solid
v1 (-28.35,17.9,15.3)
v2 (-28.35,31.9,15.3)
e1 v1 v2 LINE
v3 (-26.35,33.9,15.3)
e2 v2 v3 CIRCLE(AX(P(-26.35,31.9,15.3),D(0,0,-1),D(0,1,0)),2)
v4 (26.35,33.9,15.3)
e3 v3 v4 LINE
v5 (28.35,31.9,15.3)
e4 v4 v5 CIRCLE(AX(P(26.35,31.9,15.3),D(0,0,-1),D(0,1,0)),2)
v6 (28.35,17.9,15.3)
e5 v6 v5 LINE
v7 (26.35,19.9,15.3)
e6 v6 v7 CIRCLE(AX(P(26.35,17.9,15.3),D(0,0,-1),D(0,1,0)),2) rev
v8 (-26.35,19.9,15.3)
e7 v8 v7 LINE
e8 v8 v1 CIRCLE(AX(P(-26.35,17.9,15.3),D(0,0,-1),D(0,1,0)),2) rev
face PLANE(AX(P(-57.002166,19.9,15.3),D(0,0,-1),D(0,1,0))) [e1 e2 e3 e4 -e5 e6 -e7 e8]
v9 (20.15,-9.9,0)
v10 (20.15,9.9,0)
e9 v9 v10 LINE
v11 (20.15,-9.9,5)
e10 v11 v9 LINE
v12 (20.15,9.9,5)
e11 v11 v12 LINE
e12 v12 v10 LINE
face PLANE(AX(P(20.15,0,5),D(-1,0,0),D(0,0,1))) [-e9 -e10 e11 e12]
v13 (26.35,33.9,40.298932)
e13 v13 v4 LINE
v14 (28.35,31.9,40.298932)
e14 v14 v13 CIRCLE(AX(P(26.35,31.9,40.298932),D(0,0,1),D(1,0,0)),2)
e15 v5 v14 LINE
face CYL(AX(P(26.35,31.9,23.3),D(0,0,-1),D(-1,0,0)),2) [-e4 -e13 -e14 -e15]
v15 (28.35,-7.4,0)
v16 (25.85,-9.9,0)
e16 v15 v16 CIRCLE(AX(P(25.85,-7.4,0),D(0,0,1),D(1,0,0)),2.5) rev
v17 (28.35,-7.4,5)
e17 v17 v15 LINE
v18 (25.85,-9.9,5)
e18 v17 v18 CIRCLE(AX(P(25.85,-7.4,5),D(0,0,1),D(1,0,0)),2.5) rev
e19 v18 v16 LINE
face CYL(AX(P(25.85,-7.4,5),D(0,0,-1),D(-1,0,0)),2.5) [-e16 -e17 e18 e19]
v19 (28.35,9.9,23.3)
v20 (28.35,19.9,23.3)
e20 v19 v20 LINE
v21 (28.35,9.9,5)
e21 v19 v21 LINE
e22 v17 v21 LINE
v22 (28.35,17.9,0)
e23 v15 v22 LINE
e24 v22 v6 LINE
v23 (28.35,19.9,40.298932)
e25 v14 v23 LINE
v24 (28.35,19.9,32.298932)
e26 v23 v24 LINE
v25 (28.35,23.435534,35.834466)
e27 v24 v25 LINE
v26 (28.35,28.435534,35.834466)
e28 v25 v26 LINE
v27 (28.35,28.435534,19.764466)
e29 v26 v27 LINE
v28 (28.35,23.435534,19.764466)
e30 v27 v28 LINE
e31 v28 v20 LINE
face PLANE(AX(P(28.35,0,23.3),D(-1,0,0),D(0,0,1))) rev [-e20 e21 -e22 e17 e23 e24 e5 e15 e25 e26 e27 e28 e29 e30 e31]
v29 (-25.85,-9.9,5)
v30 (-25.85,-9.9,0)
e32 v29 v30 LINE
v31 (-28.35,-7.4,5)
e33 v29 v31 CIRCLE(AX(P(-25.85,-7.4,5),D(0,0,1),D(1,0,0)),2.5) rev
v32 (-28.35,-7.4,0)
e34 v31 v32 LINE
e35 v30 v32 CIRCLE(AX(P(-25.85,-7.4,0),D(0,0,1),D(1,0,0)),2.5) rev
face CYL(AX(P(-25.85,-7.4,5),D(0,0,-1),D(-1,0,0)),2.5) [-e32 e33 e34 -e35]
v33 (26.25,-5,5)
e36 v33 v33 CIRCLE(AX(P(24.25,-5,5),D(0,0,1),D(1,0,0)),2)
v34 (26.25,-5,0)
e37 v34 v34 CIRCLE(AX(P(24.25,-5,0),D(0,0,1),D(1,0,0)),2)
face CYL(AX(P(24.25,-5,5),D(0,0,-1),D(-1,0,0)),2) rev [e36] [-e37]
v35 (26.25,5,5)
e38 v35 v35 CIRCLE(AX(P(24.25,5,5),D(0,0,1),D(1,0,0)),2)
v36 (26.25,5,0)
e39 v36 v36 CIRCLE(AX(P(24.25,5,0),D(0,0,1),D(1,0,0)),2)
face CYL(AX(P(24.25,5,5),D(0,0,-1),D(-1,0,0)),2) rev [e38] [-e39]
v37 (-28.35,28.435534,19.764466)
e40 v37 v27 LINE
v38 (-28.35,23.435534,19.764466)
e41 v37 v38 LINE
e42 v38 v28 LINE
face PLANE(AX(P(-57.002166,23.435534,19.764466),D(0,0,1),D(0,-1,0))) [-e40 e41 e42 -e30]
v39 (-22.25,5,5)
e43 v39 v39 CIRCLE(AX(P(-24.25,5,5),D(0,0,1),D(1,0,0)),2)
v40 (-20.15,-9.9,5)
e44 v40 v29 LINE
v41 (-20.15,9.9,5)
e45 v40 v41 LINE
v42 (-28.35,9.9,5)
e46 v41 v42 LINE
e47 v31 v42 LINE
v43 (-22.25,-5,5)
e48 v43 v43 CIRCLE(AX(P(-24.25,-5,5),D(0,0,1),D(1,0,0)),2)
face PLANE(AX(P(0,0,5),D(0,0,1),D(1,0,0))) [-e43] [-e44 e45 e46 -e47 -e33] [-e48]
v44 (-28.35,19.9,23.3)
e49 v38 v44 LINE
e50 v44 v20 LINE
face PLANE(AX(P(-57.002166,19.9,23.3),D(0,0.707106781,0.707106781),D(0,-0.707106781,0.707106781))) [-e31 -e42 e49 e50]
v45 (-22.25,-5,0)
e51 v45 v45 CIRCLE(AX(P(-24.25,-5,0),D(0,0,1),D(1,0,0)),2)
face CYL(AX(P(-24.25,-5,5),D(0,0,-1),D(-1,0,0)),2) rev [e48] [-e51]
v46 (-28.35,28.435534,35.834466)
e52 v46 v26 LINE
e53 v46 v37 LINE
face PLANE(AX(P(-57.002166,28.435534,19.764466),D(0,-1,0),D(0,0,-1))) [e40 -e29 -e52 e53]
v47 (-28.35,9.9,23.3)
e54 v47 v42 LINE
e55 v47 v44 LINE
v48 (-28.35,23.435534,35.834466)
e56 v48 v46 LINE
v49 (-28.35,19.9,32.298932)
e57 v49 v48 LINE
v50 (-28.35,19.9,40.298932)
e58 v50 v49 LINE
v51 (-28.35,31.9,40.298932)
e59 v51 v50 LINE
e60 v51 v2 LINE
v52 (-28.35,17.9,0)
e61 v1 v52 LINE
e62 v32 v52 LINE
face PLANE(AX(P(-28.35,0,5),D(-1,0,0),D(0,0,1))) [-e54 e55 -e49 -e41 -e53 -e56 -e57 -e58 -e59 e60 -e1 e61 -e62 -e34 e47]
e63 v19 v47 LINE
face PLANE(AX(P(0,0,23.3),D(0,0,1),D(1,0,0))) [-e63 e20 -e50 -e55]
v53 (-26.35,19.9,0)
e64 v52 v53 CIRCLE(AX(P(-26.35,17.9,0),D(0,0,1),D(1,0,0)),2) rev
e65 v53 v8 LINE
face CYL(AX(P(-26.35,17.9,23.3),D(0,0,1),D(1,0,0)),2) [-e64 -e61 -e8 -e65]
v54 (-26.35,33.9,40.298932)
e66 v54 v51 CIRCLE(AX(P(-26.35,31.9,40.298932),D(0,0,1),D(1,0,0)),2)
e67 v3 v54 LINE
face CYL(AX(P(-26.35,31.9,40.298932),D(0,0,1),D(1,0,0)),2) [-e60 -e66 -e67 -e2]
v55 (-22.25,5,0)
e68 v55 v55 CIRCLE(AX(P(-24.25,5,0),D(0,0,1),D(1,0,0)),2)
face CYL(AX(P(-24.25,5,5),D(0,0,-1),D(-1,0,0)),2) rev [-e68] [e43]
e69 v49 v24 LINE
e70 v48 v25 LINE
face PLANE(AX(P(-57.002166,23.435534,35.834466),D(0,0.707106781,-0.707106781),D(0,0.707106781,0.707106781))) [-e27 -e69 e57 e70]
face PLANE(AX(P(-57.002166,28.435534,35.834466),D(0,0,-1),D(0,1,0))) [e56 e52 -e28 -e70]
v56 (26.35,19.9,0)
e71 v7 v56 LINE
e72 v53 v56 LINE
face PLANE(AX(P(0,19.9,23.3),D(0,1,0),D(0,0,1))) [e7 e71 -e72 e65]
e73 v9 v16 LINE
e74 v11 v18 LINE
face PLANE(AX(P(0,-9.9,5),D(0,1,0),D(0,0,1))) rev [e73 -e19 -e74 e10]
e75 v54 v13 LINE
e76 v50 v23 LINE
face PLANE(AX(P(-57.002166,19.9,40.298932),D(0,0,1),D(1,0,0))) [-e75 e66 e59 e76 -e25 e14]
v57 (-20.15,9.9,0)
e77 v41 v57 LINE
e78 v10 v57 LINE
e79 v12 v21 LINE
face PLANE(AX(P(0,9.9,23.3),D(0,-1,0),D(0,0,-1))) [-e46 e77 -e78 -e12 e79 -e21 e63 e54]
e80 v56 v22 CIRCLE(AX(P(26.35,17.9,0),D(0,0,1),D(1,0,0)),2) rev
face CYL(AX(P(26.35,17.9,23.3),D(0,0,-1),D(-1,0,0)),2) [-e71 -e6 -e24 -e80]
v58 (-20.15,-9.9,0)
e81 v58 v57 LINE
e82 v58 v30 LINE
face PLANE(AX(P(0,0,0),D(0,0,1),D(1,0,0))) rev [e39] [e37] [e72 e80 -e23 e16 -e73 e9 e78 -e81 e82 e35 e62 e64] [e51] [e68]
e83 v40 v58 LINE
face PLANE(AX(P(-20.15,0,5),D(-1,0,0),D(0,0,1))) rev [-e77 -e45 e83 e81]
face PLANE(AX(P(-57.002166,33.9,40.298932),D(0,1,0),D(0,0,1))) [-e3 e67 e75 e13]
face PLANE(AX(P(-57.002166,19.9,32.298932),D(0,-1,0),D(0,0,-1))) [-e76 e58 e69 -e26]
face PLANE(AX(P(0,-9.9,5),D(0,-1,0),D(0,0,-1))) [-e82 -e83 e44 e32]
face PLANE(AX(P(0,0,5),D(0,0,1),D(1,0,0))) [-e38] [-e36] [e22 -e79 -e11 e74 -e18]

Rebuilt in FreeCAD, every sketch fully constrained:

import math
import FreeCAD as App
import Part
import Sketcher
from FreeCAD import Vector


def edges_at(feature, points):
    """Names of the edges that pass closest to the given points."""
    edges = feature.Shape.Edges
    near = lambda p: min(range(len(edges)), key=lambda i: edges[i].distToShape(Part.Vertex(*p))[0])
    return sorted({f"Edge{near(p) + 1}" for p in points})

doc = App.newDocument("Part")
params = doc.addObject("Spreadsheet::Sheet", "Params")
for row, (alias, value) in enumerate([
    ("sketch1_diameter", "4 mm"),
    ("sketch1_radius", "2.5 mm"),
    ("sketch1_width", "5.7 mm"),
    ("sketch1_height", "19.8 mm"),
    ("pad1_length", "5 mm"),
    ("sketch2_diameter", "4 mm"),
    ("sketch2_radius", "2.5 mm"),
    ("sketch2_width", "8.2 mm"),
    ("sketch2_height", "17.3 mm"),
    ("pad2_length", "5 mm"),
    ("sketch3_radius", "2.5 mm"),
    ("sketch3_width", "56.7 mm"),
    ("sketch3_height", "7.5 mm"),
    ("pad3_length", "23.3 mm"),
    ("sketch4_width", "14 mm"),
    ("sketch4_width2", "5 mm"),
    ("sketch4_height", "8 mm"),
    ("sketch4_length", "5 mm"),
    ("sketch4_height2", "16.07 mm"),
    ("pad4_length", "56.7 mm"),
    ("sketch5_radius", "2.5 mm"),
    ("pad5_length", "23.3 mm"),
    ("fillet_radius", "2 mm"),
], start=1):
    params.set(f"A{row}", alias)
    params.set(f"B{row}", "=" + value)
    params.setAlias(f"B{row}", alias)

body = doc.addObject("PartDesign::Body", "Body")

sketch1 = body.newObject("Sketcher::SketchObject", "Sketch")
sketch1.AttachmentSupport = (doc.getObject("XY_Plane"), [""])
sketch1.MapMode = "FlatFace"
sketch1.addGeometry(Part.ArcOfCircle(Part.Circle(Vector(-25.85, -7.4, 0), Vector(0, 0, 1), 2.5), math.radians(180), math.radians(270)), False)
sketch1.addGeometry(Part.LineSegment(Vector(-25.85, -9.9, 0), Vector(-20.15, -9.9, 0)), False)
sketch1.addGeometry(Part.LineSegment(Vector(-20.15, -9.9, 0), Vector(-20.15, 9.9, 0)), False)
sketch1.addGeometry(Part.LineSegment(Vector(-20.15, 9.9, 0), Vector(-28.35, 9.9, 0)), False)
sketch1.addGeometry(Part.LineSegment(Vector(-28.35, 9.9, 0), Vector(-28.35, -7.4, 0)), False)
sketch1.addGeometry(Part.Circle(Vector(-24.25, -5, 0), Vector(0, 0, 1), 2), False)
sketch1.addGeometry(Part.Circle(Vector(-24.25, 5, 0), Vector(0, 0, 1), 2), False)
sketch1.addConstraint(Sketcher.Constraint("Tangent", 0, 2, 1, 1))
sketch1.addConstraint(Sketcher.Constraint("Coincident", 1, 2, 2, 1))
sketch1.addConstraint(Sketcher.Constraint("Coincident", 2, 2, 3, 1))
sketch1.addConstraint(Sketcher.Constraint("Coincident", 3, 2, 4, 1))
sketch1.addConstraint(Sketcher.Constraint("Tangent", 4, 2, 0, 1))
sketch1.addConstraint(Sketcher.Constraint("Horizontal", 1))
sketch1.addConstraint(Sketcher.Constraint("Vertical", 2))
sketch1.addConstraint(Sketcher.Constraint("Horizontal", 3))
sketch1.addConstraint(Sketcher.Constraint("Vertical", 4))
sketch1.addConstraint(Sketcher.Constraint("Equal", 5, 6))
sketch1.addConstraint(Sketcher.Constraint("Symmetric", 5, 3, 6, 3, -1))
sketch1.addConstraint(Sketcher.Constraint("Diameter", 5, 4.0))
sketch1.addConstraint(Sketcher.Constraint("Radius", 0, 2.5))
sketch1.addConstraint(Sketcher.Constraint("DistanceX", 1, 1, 1, 2, 5.7))
sketch1.addConstraint(Sketcher.Constraint("DistanceY", 2, 1, 2, 2, 19.8))
sketch1.addConstraint(Sketcher.Constraint("DistanceY", 5, 3, -1, 1, 5.0))
sketch1.addConstraint(Sketcher.Constraint("DistanceY", 0, 3, -1, 1, 7.4))
sketch1.addConstraint(Sketcher.Constraint("DistanceX", 0, 3, 5, 3, 1.6))
sketch1.addConstraint(Sketcher.Constraint("DistanceX", 0, 3, -1, 1, 25.85))
sketch1.setExpression("Constraints[11]", "Params.sketch1_diameter")
sketch1.setExpression("Constraints[12]", "Params.sketch1_radius")
sketch1.setExpression("Constraints[13]", "Params.sketch1_width")
sketch1.setExpression("Constraints[14]", "Params.sketch1_height")
pad1 = body.newObject("PartDesign::Pad", "Pad")
pad1.Profile = sketch1
pad1.setExpression("Length", "Params.pad1_length")
body2 = doc.addObject("PartDesign::Body", "Body001")

sketch2 = body2.newObject("Sketcher::SketchObject", "Sketch001")
sketch2.AttachmentSupport = (doc.getObject("XY_Plane001"), [""])
sketch2.MapMode = "FlatFace"
sketch2.addGeometry(Part.ArcOfCircle(Part.Circle(Vector(25.85, -7.4, 0), Vector(0, 0, 1), 2.5), math.radians(-90), math.radians(0)), False)
sketch2.addGeometry(Part.LineSegment(Vector(28.35, -7.4, 0), Vector(28.35, 9.9, 0)), False)
sketch2.addGeometry(Part.LineSegment(Vector(28.35, 9.9, 0), Vector(20.15, 9.9, 0)), False)
sketch2.addGeometry(Part.LineSegment(Vector(20.15, 9.9, 0), Vector(20.15, -9.9, 0)), False)
sketch2.addGeometry(Part.LineSegment(Vector(20.15, -9.9, 0), Vector(25.85, -9.9, 0)), False)
sketch2.addGeometry(Part.Circle(Vector(24.25, -5, 0), Vector(0, 0, 1), 2), False)
sketch2.addGeometry(Part.Circle(Vector(24.25, 5, 0), Vector(0, 0, 1), 2), False)
sketch2.addConstraint(Sketcher.Constraint("Tangent", 0, 2, 1, 1))
sketch2.addConstraint(Sketcher.Constraint("Coincident", 1, 2, 2, 1))
sketch2.addConstraint(Sketcher.Constraint("Coincident", 2, 2, 3, 1))
sketch2.addConstraint(Sketcher.Constraint("Coincident", 3, 2, 4, 1))
sketch2.addConstraint(Sketcher.Constraint("Tangent", 4, 2, 0, 1))
sketch2.addConstraint(Sketcher.Constraint("Vertical", 1))
sketch2.addConstraint(Sketcher.Constraint("Horizontal", 2))
sketch2.addConstraint(Sketcher.Constraint("Vertical", 3))
sketch2.addConstraint(Sketcher.Constraint("Horizontal", 4))
sketch2.addConstraint(Sketcher.Constraint("Equal", 5, 6))
sketch2.addConstraint(Sketcher.Constraint("Symmetric", 5, 3, 6, 3, -1))
sketch2.addConstraint(Sketcher.Constraint("Diameter", 5, 4.0))
sketch2.addConstraint(Sketcher.Constraint("Radius", 0, 2.5))
sketch2.addConstraint(Sketcher.Constraint("DistanceX", 2, 2, 2, 1, 8.2))
sketch2.addConstraint(Sketcher.Constraint("DistanceY", 1, 1, 1, 2, 17.3))
sketch2.addConstraint(Sketcher.Constraint("DistanceY", 5, 3, -1, 1, 5.0))
sketch2.addConstraint(Sketcher.Constraint("DistanceY", 0, 3, -1, 1, 7.4))
sketch2.addConstraint(Sketcher.Constraint("DistanceX", 5, 3, 0, 3, 1.6))
sketch2.addConstraint(Sketcher.Constraint("DistanceX", -1, 1, 0, 3, 25.85))
sketch2.setExpression("Constraints[11]", "Params.sketch2_diameter")
sketch2.setExpression("Constraints[12]", "Params.sketch2_radius")
sketch2.setExpression("Constraints[13]", "Params.sketch2_width")
sketch2.setExpression("Constraints[14]", "Params.sketch2_height")
pad2 = body2.newObject("PartDesign::Pad", "Pad001")
pad2.Profile = sketch2
pad2.setExpression("Length", "Params.pad2_length")
body.AllowCompound = True
doc.recompute()

boolean = body.newObject("PartDesign::Boolean", "Boolean")
boolean.Type = "Fuse"
boolean.addObjects([body2])

sketch3 = body.newObject("Sketcher::SketchObject", "Sketch002")
sketch3.AttachmentSupport = (doc.getObject("XY_Plane"), [""])
sketch3.MapMode = "FlatFace"
sketch3.addGeometry(Part.LineSegment(Vector(-28.35, 9.9, 0), Vector(28.35, 9.9, 0)), False)
sketch3.addGeometry(Part.LineSegment(Vector(28.35, 9.9, 0), Vector(28.35, 17.4, 0)), False)
sketch3.addGeometry(Part.ArcOfCircle(Part.Circle(Vector(25.85, 17.4, 0), Vector(0, 0, 1), 2.5), math.radians(0), math.radians(90)), False)
sketch3.addGeometry(Part.LineSegment(Vector(25.85, 19.9, 0), Vector(-25.85, 19.9, 0)), False)
sketch3.addGeometry(Part.ArcOfCircle(Part.Circle(Vector(-25.85, 17.4, 0), Vector(0, 0, 1), 2.5), math.radians(90), math.radians(180)), False)
sketch3.addGeometry(Part.LineSegment(Vector(-28.35, 17.4, 0), Vector(-28.35, 9.9, 0)), False)
sketch3.addConstraint(Sketcher.Constraint("Coincident", 0, 2, 1, 1))
sketch3.addConstraint(Sketcher.Constraint("Tangent", 1, 2, 2, 1))
sketch3.addConstraint(Sketcher.Constraint("Tangent", 2, 2, 3, 1))
sketch3.addConstraint(Sketcher.Constraint("Tangent", 3, 2, 4, 1))
sketch3.addConstraint(Sketcher.Constraint("Tangent", 4, 2, 5, 1))
sketch3.addConstraint(Sketcher.Constraint("Coincident", 5, 2, 0, 1))
sketch3.addConstraint(Sketcher.Constraint("Horizontal", 0))
sketch3.addConstraint(Sketcher.Constraint("Vertical", 1))
sketch3.addConstraint(Sketcher.Constraint("Horizontal", 3))
sketch3.addConstraint(Sketcher.Constraint("Vertical", 5))
sketch3.addConstraint(Sketcher.Constraint("Equal", 2, 4))
sketch3.addConstraint(Sketcher.Constraint("Radius", 2, 2.5))
sketch3.addConstraint(Sketcher.Constraint("DistanceX", 0, 1, 0, 2, 56.7))
sketch3.addConstraint(Sketcher.Constraint("DistanceY", 1, 1, 1, 2, 7.5))
sketch3.addConstraint(Sketcher.Constraint("DistanceY", -1, 1, 2, 3, 17.4))
sketch3.addConstraint(Sketcher.Constraint("DistanceX", -1, 1, 2, 3, 25.85))
sketch3.setExpression("Constraints[11]", "Params.sketch3_radius")
sketch3.setExpression("Constraints[12]", "Params.sketch3_width")
sketch3.setExpression("Constraints[13]", "Params.sketch3_height")
pad3 = body.newObject("PartDesign::Pad", "Pad002")
pad3.Profile = sketch3
pad3.setExpression("Length", "Params.pad3_length")

sketch4 = body.newObject("Sketcher::SketchObject", "Sketch003")
sketch4.AttachmentSupport = (doc.getObject("YZ_Plane"), [""])
sketch4.MapMode = "FlatFace"
sketch4.AttachmentOffset = App.Placement(Vector(0, 0, 28.35), App.Rotation())
sketch4.addGeometry(Part.LineSegment(Vector(23.435534, 19.764466, 0), Vector(19.9, 23.3, 0)), False)
sketch4.addGeometry(Part.LineSegment(Vector(19.9, 23.3, 0), Vector(19.9, 15.3, 0)), False)
sketch4.addGeometry(Part.LineSegment(Vector(19.9, 15.3, 0), Vector(33.9, 15.3, 0)), False)
sketch4.addGeometry(Part.LineSegment(Vector(33.9, 15.3, 0), Vector(33.9, 40.298932, 0)), False)
sketch4.addGeometry(Part.LineSegment(Vector(33.9, 40.298932, 0), Vector(19.9, 40.298932, 0)), False)
sketch4.addGeometry(Part.LineSegment(Vector(19.9, 40.298932, 0), Vector(19.9, 32.298932, 0)), False)
sketch4.addGeometry(Part.LineSegment(Vector(19.9, 32.298932, 0), Vector(23.435534, 35.834466, 0)), False)
sketch4.addGeometry(Part.LineSegment(Vector(23.435534, 35.834466, 0), Vector(28.435534, 35.834466, 0)), False)
sketch4.addGeometry(Part.LineSegment(Vector(28.435534, 35.834466, 0), Vector(28.435534, 19.764466, 0)), False)
sketch4.addGeometry(Part.LineSegment(Vector(28.435534, 19.764466, 0), Vector(23.435534, 19.764466, 0)), False)
sketch4.addConstraint(Sketcher.Constraint("Coincident", 0, 2, 1, 1))
sketch4.addConstraint(Sketcher.Constraint("Coincident", 1, 2, 2, 1))
sketch4.addConstraint(Sketcher.Constraint("Coincident", 2, 2, 3, 1))
sketch4.addConstraint(Sketcher.Constraint("Coincident", 3, 2, 4, 1))
sketch4.addConstraint(Sketcher.Constraint("Coincident", 4, 2, 5, 1))
sketch4.addConstraint(Sketcher.Constraint("Coincident", 5, 2, 6, 1))
sketch4.addConstraint(Sketcher.Constraint("Coincident", 6, 2, 7, 1))
sketch4.addConstraint(Sketcher.Constraint("Coincident", 7, 2, 8, 1))
sketch4.addConstraint(Sketcher.Constraint("Coincident", 8, 2, 9, 1))
sketch4.addConstraint(Sketcher.Constraint("Coincident", 9, 2, 0, 1))
sketch4.addConstraint(Sketcher.Constraint("Vertical", 1))
sketch4.addConstraint(Sketcher.Constraint("Horizontal", 2))
sketch4.addConstraint(Sketcher.Constraint("Vertical", 3))
sketch4.addConstraint(Sketcher.Constraint("Horizontal", 4))
sketch4.addConstraint(Sketcher.Constraint("Vertical", 5))
sketch4.addConstraint(Sketcher.Constraint("Horizontal", 7))
sketch4.addConstraint(Sketcher.Constraint("Vertical", 8))
sketch4.addConstraint(Sketcher.Constraint("Horizontal", 9))
sketch4.addConstraint(Sketcher.Constraint("Perpendicular", 0, 6))
sketch4.addConstraint(Sketcher.Constraint("Vertical", 1, 2, 4, 2))
sketch4.addConstraint(Sketcher.Constraint("Vertical", 6, 2, 9, 2))
sketch4.addConstraint(Sketcher.Constraint("Equal", 1, 5))
sketch4.addConstraint(Sketcher.Constraint("Equal", 0, 6))
sketch4.addConstraint(Sketcher.Constraint("DistanceX", 2, 1, 2, 2, 14.0))
sketch4.addConstraint(Sketcher.Constraint("DistanceX", 7, 1, 7, 2, 5.0))
sketch4.addConstraint(Sketcher.Constraint("DistanceY", 1, 2, 1, 1, 8.0))
sketch4.addConstraint(Sketcher.Constraint("Distance", 0, 5.0))
sketch4.addConstraint(Sketcher.Constraint("DistanceY", 8, 2, 8, 1, 16.07))
sketch4.addConstraint(Sketcher.Constraint("DistanceX", -1, 1, 0, 2, 19.9))
sketch4.addConstraint(Sketcher.Constraint("DistanceY", -1, 1, 0, 2, 23.3))
sketch4.setExpression("Constraints[23]", "Params.sketch4_width")
sketch4.setExpression("Constraints[24]", "Params.sketch4_width2")
sketch4.setExpression("Constraints[25]", "Params.sketch4_height")
sketch4.setExpression("Constraints[26]", "Params.sketch4_length")
sketch4.setExpression("Constraints[27]", "Params.sketch4_height2")
pad4 = body.newObject("PartDesign::Pad", "Pad003")
pad4.Profile = sketch4
pad4.setExpression("Length", "Params.pad4_length")
pad4.Reversed = True

sketch5 = body.newObject("Sketcher::SketchObject", "Sketch004")
sketch5.AttachmentSupport = (doc.getObject("XY_Plane"), [""])
sketch5.MapMode = "FlatFace"
sketch5.AttachmentOffset = App.Placement(Vector(0, 0, 23.3), App.Rotation())
sketch5.addGeometry(Part.LineSegment(Vector(-28.35, 19.9, 0), Vector(-28.35, 17.4, 0)), False)
sketch5.addGeometry(Part.ArcOfCircle(Part.Circle(Vector(-25.85, 17.4, 0), Vector(0, 0, 1), 2.5), math.radians(90), math.radians(180)), False)
sketch5.addGeometry(Part.LineSegment(Vector(-25.85, 19.9, 0), Vector(-28.35, 19.9, 0)), False)
sketch5.addGeometry(Part.LineSegment(Vector(28.35, 19.9, 0), Vector(25.85, 19.9, 0)), False)
sketch5.addGeometry(Part.ArcOfCircle(Part.Circle(Vector(25.85, 17.4, 0), Vector(0, 0, 1), 2.5), math.radians(0), math.radians(90)), False)
sketch5.addGeometry(Part.LineSegment(Vector(28.35, 17.4, 0), Vector(28.35, 19.9, 0)), False)
sketch5.addConstraint(Sketcher.Constraint("Tangent", 0, 2, 1, 2))
sketch5.addConstraint(Sketcher.Constraint("Tangent", 1, 1, 2, 1))
sketch5.addConstraint(Sketcher.Constraint("Coincident", 2, 2, 0, 1))
sketch5.addConstraint(Sketcher.Constraint("Tangent", 3, 2, 4, 2))
sketch5.addConstraint(Sketcher.Constraint("Tangent", 4, 1, 5, 1))
sketch5.addConstraint(Sketcher.Constraint("Coincident", 5, 2, 3, 1))
sketch5.addConstraint(Sketcher.Constraint("Vertical", 0))
sketch5.addConstraint(Sketcher.Constraint("Horizontal", 2))
sketch5.addConstraint(Sketcher.Constraint("Horizontal", 3))
sketch5.addConstraint(Sketcher.Constraint("Vertical", 5))
sketch5.addConstraint(Sketcher.Constraint("Equal", 1, 4))
sketch5.addConstraint(Sketcher.Constraint("Symmetric", 1, 3, 4, 3, -2))
sketch5.addConstraint(Sketcher.Constraint("Radius", 1, 2.5))
sketch5.addConstraint(Sketcher.Constraint("DistanceY", -1, 1, 1, 3, 17.4))
sketch5.addConstraint(Sketcher.Constraint("DistanceX", 1, 3, 4, 3, 51.7))
sketch5.setExpression("Constraints[12]", "Params.sketch5_radius")
pad5 = body.newObject("PartDesign::Pad", "Pad004")
pad5.Profile = sketch5
pad5.setExpression("Length", "Params.pad5_length")
pad5.Reversed = True
doc.recompute()

fillet = body.newObject("PartDesign::Fillet", "Fillet")
fillet.Base = (pad5, edges_at(pad5, [
    (28.35, 33.9, 27.799),
    (-28.35, 33.9, 27.799),
    (-28.35, 19.9, 7.65),
    (28.35, 19.9, 7.65),
]))
fillet.setExpression("Radius", "Params.fillet_radius")

doc.recompute()
